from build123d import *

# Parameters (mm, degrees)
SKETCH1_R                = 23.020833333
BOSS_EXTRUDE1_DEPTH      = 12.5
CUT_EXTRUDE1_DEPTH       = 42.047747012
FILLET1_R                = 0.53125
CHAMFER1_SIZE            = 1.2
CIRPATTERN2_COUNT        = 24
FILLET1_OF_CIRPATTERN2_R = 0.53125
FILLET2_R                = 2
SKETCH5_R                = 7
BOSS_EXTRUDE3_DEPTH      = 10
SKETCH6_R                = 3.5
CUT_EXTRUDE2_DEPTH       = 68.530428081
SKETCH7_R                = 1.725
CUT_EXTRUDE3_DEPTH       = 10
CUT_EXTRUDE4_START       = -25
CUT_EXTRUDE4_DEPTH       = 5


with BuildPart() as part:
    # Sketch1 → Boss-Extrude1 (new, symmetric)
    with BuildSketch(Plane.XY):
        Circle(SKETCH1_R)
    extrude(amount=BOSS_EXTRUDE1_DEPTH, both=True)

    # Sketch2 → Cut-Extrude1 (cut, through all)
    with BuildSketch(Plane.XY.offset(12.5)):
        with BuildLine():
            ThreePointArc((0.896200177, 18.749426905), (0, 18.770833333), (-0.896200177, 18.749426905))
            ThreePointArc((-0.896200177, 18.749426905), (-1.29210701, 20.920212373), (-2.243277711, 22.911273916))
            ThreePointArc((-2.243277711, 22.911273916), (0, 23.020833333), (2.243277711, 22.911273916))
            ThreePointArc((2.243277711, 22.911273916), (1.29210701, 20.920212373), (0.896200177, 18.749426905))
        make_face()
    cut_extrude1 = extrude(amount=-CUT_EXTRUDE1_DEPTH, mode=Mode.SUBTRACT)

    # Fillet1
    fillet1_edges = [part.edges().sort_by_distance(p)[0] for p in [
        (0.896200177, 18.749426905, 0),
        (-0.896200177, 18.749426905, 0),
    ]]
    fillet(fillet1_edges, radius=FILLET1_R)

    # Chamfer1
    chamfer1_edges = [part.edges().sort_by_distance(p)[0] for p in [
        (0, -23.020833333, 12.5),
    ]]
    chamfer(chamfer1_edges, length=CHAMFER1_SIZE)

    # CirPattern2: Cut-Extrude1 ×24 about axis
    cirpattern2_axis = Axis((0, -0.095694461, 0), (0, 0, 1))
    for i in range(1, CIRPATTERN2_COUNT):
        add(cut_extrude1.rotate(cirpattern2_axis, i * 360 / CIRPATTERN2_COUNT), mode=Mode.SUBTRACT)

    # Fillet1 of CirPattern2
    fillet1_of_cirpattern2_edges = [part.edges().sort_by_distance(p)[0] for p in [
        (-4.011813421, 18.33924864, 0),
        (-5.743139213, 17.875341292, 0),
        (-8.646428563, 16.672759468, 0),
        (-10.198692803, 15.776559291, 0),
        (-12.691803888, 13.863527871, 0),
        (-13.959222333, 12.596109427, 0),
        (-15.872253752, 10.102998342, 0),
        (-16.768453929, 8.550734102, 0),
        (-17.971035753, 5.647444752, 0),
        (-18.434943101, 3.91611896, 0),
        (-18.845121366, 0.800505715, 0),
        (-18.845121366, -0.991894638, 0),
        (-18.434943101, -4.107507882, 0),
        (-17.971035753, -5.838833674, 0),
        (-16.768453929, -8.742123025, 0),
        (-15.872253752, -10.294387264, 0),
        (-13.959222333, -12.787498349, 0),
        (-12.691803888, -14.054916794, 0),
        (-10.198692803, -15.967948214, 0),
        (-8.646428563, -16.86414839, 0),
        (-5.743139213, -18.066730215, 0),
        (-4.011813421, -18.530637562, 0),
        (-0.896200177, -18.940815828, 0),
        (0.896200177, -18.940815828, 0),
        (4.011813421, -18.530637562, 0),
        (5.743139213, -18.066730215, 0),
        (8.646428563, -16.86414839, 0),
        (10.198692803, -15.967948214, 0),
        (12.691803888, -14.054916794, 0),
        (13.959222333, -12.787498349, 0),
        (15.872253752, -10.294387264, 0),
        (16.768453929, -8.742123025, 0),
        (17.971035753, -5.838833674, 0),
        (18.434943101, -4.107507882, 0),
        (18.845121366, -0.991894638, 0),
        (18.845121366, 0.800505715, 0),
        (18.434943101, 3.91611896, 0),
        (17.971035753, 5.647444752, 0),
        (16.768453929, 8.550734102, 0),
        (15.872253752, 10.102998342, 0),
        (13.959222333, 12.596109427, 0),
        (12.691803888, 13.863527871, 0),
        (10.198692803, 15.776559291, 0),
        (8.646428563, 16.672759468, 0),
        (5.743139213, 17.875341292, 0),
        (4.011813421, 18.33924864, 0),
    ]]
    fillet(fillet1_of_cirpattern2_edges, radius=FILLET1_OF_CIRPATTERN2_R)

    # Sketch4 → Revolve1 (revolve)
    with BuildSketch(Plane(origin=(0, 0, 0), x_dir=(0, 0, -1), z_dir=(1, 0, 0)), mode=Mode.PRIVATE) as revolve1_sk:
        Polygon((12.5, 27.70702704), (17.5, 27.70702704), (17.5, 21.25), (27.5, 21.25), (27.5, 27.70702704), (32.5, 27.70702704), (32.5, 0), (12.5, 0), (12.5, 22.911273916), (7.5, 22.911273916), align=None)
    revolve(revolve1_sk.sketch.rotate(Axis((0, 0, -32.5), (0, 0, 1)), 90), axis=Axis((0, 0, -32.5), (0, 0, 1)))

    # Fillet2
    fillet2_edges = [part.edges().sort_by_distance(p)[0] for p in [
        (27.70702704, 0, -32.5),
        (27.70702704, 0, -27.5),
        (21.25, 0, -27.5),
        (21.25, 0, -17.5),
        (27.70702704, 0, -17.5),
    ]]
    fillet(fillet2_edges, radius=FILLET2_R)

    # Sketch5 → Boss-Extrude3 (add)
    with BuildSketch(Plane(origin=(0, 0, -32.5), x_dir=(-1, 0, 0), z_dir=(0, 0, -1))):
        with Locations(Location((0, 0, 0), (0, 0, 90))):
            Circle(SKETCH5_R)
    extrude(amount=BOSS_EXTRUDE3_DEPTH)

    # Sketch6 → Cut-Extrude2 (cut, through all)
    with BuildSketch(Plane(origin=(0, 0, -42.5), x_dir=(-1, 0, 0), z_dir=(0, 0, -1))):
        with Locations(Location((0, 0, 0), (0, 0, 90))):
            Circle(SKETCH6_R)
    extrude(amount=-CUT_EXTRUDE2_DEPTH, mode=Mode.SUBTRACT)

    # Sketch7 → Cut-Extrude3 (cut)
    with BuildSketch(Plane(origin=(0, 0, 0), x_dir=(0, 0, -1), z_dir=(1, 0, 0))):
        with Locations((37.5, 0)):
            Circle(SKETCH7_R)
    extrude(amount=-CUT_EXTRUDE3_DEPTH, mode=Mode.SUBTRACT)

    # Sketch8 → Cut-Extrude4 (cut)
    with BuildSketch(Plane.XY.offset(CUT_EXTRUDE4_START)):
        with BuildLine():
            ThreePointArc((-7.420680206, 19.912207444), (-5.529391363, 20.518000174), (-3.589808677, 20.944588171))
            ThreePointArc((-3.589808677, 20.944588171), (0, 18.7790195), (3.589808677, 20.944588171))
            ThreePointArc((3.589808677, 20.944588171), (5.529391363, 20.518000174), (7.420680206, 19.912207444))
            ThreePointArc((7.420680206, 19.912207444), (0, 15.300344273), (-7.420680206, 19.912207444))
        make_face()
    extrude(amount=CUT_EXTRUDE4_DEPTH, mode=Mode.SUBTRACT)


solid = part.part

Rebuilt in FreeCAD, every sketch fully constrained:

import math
import FreeCAD as App
import Part
import Sketcher
from FreeCAD import Vector


def edges_at(feature, points):
    """Names of the edges that pass closest to the given points."""
    edges = feature.Shape.Edges
    near = lambda p: min(range(len(edges)), key=lambda i: edges[i].distToShape(Part.Vertex(*p))[0])
    return sorted({f"Edge{near(p) + 1}" for p in points})


def add_polygon(sketch, points):
    """Adds a closed chain of lines whose ends are joined by coincident constraints."""
    first, n = sketch.GeometryCount, len(points)
    for a, b in zip(points, points[1:] + points[:1]):
        sketch.addGeometry(Part.LineSegment(App.Vector(*a, 0), App.Vector(*b, 0)), False)
    for i in range(n):
        sketch.addConstraint(Sketcher.Constraint("Coincident", first + i, 2, first + (i + 1) % n, 1))

doc = App.newDocument("Part")
body = doc.addObject("PartDesign::Body", "Body")

sketch1 = doc.addObject("Sketcher::SketchObject", "Sketch")
body.addObject(sketch1)
sketch1.AttachmentSupport = (doc.XY_Plane, [""])
sketch1.MapMode = "FlatFace"
sketch1.addGeometry(Part.Circle(Vector(0, 0, 0), Vector(0, 0, 1), 23), False)
sketch1.addConstraint([
    Sketcher.Constraint("Coincident", 0, 3, -1, 1),
    Sketcher.Constraint("Diameter", 0, 46.041667),
])
pad1 = doc.addObject("PartDesign::Pad", "Pad")
body.addObject(pad1)
pad1.Profile = sketch1
pad1.Length = 25
pad1.Midplane = True

sketch2 = doc.addObject("Sketcher::SketchObject", "Sketch001")
body.addObject(sketch2)
sketch2.AttachmentSupport = (doc.XY_Plane, [""])
sketch2.MapMode = "FlatFace"
sketch2.AttachmentOffset = App.Placement(Vector(0, 0, 12.5), App.Rotation())
sketch2.addGeometry([
    Part.ArcOfCircle(Part.Circle(Vector(0, 0, 0), Vector(0, 0, 1), 18.8), math.radians(87.26), math.radians(92.74)),
    Part.ArcOfCircle(Part.Circle(Vector(9.2, 18.4, 0), Vector(0, 0, 1), 8.3), math.radians(147), math.radians(177)),
    Part.ArcOfCircle(Part.Circle(Vector(0, 0, 0), Vector(0, 0, 1), 23), math.radians(84.41), math.radians(95.59)),
    Part.ArcOfCircle(Part.Circle(Vector(-9.2, 18.4, 0), Vector(0, 0, 1), 8.3), math.radians(3), math.radians(33)),
], False)
sketch2.addConstraint([
    Sketcher.Constraint("Coincident", 0, 1, 1, 2),
    Sketcher.Constraint("Coincident", 1, 1, 2, 1),
    Sketcher.Constraint("Coincident", 2, 2, 3, 2),
    Sketcher.Constraint("Coincident", 3, 1, 0, 2),
    Sketcher.Constraint("Coincident", 0, 3, -1, 1),
    Sketcher.Constraint("Coincident", 2, 3, -1, 1),
    Sketcher.Constraint("Equal", 1, 3),
    Sketcher.Constraint("Symmetric", 1, 3, 3, 3, -2),
    Sketcher.Constraint("Radius", 1, 8.342768),
    Sketcher.Constraint("Radius", 0, 18.770834),
    Sketcher.Constraint("Radius", 2, 23.020833),
    Sketcher.Constraint("DistanceX", -1, 1, 0, 1, 0.8962),
    Sketcher.Constraint("DistanceX", 3, 3, 1, 3, 18.458908),
])
pocket1 = doc.addObject("PartDesign::Pocket", "Pocket")
body.addObject(pocket1)
pocket1.Profile = sketch2
pocket1.Type = "ThroughAll"
doc.recompute()

fillet = doc.addObject("PartDesign::Fillet", "Fillet")
body.addObject(fillet)
fillet.Base = (pocket1, edges_at(pocket1, [(0.896, 18.749, 0), (-0.896, 18.749, 0)]))
fillet.Radius = 0.53125
doc.recompute()

chamfer = doc.addObject("PartDesign::Chamfer", "Chamfer")
body.addObject(chamfer)
chamfer.Base = (fillet, edges_at(fillet, [(0, -23.021, 12.5)]))
chamfer.Size = 1.2
doc.recompute()

datumline = doc.addObject("PartDesign::Line", "DatumLine")
body.addObject(datumline)
datumline.Placement = App.Placement(Vector(0, -0.095694, 0), App.Rotation(Vector(0, 0, 1), Vector(0, 0, 1)))
polarpattern = doc.addObject("PartDesign::PolarPattern", "PolarPattern")
body.addObject(polarpattern)
polarpattern.Originals = [pocket1]
polarpattern.Axis = (datumline, [""])
polarpattern.Angle = 360
polarpattern.Occurrences = 24
body.Tip = polarpattern
doc.recompute()

fillet2 = doc.addObject("PartDesign::Fillet", "Fillet001")
body.addObject(fillet2)
fillet2.Base = (polarpattern, edges_at(polarpattern, [
    (-4.012, 18.339, 0),
    (-5.743, 17.875, 0),
    (-8.646, 16.673, 0),
    (-10.199, 15.777, 0),
    (-12.692, 13.864, 0),
    (-13.959, 12.596, 0),
    (-15.872, 10.103, 0),
    (-16.768, 8.551, 0),
    (-17.971, 5.647, 0),
    (-18.435, 3.916, 0),
    (-18.845, 0.801, 0),
    (-18.845, -0.992, 0),
    (-18.435, -4.108, 0),
    (-17.971, -5.839, 0),
    (-16.768, -8.742, 0),
    (-15.872, -10.294, 0),
    (-13.959, -12.787, 0),
    (-12.692, -14.055, 0),
    (-10.199, -15.968, 0),
    (-8.646, -16.864, 0),
    (-5.743, -18.067, 0),
    (-4.012, -18.531, 0),
    (-0.896, -18.941, 0),
    (0.896, -18.941, 0),
    (4.012, -18.531, 0),
    (5.743, -18.067, 0),
    (8.646, -16.864, 0),
    (10.199, -15.968, 0),
    (12.692, -14.055, 0),
    (13.959, -12.787, 0),
    (15.872, -10.294, 0),
    (16.768, -8.742, 0),
    (17.971, -5.839, 0),
    (18.435, -4.108, 0),
    (18.845, -0.992, 0),
    (18.845, 0.801, 0),
    (18.435, 3.916, 0),
    (17.971, 5.647, 0),
    (16.768, 8.551, 0),
    (15.872, 10.103, 0),
    (13.959, 12.596, 0),
    (12.692, 13.864, 0),
    (10.199, 15.777, 0),
    (8.646, 16.673, 0),
    (5.743, 17.875, 0),
    (4.012, 18.339, 0),
]))
fillet2.Radius = 0.53125

sketch3 = doc.addObject("Sketcher::SketchObject", "Sketch002")
body.addObject(sketch3)
sketch3.AttachmentSupport = (doc.YZ_Plane, [""])
sketch3.MapMode = "FlatFace"
add_polygon(sketch3, [(28, -18), (28, -12), (23, -8), (23, -12), (0, -12), (0, -32), (28, -32), (28, -28), (21, -28), (21, -18)])
sketch3.addConstraint([
    Sketcher.Constraint("Vertical", 0),
    Sketcher.Constraint("Vertical", 2),
    Sketcher.Constraint("Horizontal", 3),
    Sketcher.Constraint("Vertical", 4),
    Sketcher.Constraint("Horizontal", 5),
    Sketcher.Constraint("Vertical", 6),
    Sketcher.Constraint("Horizontal", 7),
    Sketcher.Constraint("Vertical", 8),
    Sketcher.Constraint("Horizontal", 9),
    Sketcher.Constraint("PointOnObject", 3, 2, -2),
    Sketcher.Constraint("Horizontal", 0, 2, 2, 2),
    Sketcher.Constraint("Vertical", 0, 2, 5, 2),
    Sketcher.Constraint("Equal", 0, 2),
    Sketcher.Constraint("Equal", 2, 6),
    Sketcher.Constraint("DistanceY", 0, 1, 0, 2, 5.0),
    Sketcher.Constraint("DistanceY", 4, 2, 4, 1, 20.0),
    Sketcher.Constraint("DistanceY", 0, 2, -1, 1, 12.5),
    Sketcher.Constraint("DistanceX", -1, 1, 7, 2, 21.25),
    Sketcher.Constraint("Distance", 1, 6.928149),
    Sketcher.Constraint("DistanceX", 3, 2, 3, 1, 22.911274),
])
revolution = doc.addObject("PartDesign::Revolution", "Revolution")
body.addObject(revolution)
revolution.Profile = sketch3
revolution.ReferenceAxis = (sketch3, ["V_Axis"])
revolution.Angle = 360
doc.recompute()

fillet3 = doc.addObject("PartDesign::Fillet", "Fillet002")
body.addObject(fillet3)
fillet3.Base = (revolution, edges_at(revolution, [
    (27.707, 0, -32.5),
    (27.707, 0, -27.5),
    (21.25, 0, -27.5),
    (21.25, 0, -17.5),
    (27.707, 0, -17.5),
]))
fillet3.Radius = 2

sketch4 = doc.addObject("Sketcher::SketchObject", "Sketch003")
body.addObject(sketch4)
sketch4.AttachmentSupport = (doc.XY_Plane, [""])
sketch4.MapMode = "FlatFace"
sketch4.AttachmentOffset = App.Placement(Vector(0, 0, -32.5), App.Rotation())
sketch4.addGeometry(Part.Circle(Vector(0, 0, 0), Vector(0, 0, 1), 7), False)
sketch4.addConstraint([
    Sketcher.Constraint("Coincident", 0, 3, -1, 1),
    Sketcher.Constraint("Diameter", 0, 14.0),
])
pad2 = doc.addObject("PartDesign::Pad", "Pad001")
body.addObject(pad2)
pad2.Profile = sketch4
pad2.Length = 10
pad2.Reversed = True

sketch5 = doc.addObject("Sketcher::SketchObject", "Sketch004")
body.addObject(sketch5)
sketch5.AttachmentSupport = (doc.XY_Plane, [""])
sketch5.MapMode = "FlatFace"
sketch5.AttachmentOffset = App.Placement(Vector(0, 0, -42.5), App.Rotation())
sketch5.addGeometry(Part.Circle(Vector(0, 0, 0), Vector(0, 0, 1), 3.5), False)
sketch5.addConstraint([
    Sketcher.Constraint("Coincident", 0, 3, -1, 1),
    Sketcher.Constraint("Diameter", 0, 7.0),
])
pocket2 = doc.addObject("PartDesign::Pocket", "Pocket001")
body.addObject(pocket2)
pocket2.Profile = sketch5
pocket2.Type = "ThroughAll"
pocket2.Reversed = True

sketch6 = doc.addObject("Sketcher::SketchObject", "Sketch005")
body.addObject(sketch6)
sketch6.AttachmentSupport = (doc.YZ_Plane, [""])
sketch6.MapMode = "FlatFace"
sketch6.addGeometry(Part.Circle(Vector(0, -37.5, 0), Vector(0, 0, 1), 1.7), False)
sketch6.addConstraint([
    Sketcher.Constraint("PointOnObject", 0, 3, -2),
    Sketcher.Constraint("Diameter", 0, 3.45),
    Sketcher.Constraint("DistanceY", 0, 3, -1, 1, 37.5),
])
pocket3 = doc.addObject("PartDesign::Pocket", "Pocket002")
body.addObject(pocket3)
pocket3.Profile = sketch6
pocket3.Length = 10

sketch7 = doc.addObject("Sketcher::SketchObject", "Sketch006")
body.addObject(sketch7)
sketch7.AttachmentSupport = (doc.XY_Plane, [""])
sketch7.MapMode = "FlatFace"
sketch7.AttachmentOffset = App.Placement(Vector(0, 0, -25), App.Rotation())
sketch7.addGeometry([
    Part.ArcOfCircle(Part.Circle(Vector(0, 0, 0), Vector(0, 0, 1), 21.3), math.radians(99.73), math.radians(110.44)),
    Part.ArcOfCircle(Part.Circle(Vector(0, 23.6, 0), Vector(0, 0, 1), 8.3), math.radians(-154), math.radians(-26)),
    Part.ArcOfCircle(Part.Circle(Vector(0, 0, 0), Vector(0, 0, 1), 21.3), math.radians(69.56), math.radians(80.27)),
    Part.ArcOfCircle(Part.Circle(Vector(0, 22.8, 0), Vector(0, 0, 1), 4.1), math.radians(-152), math.radians(-28)),
], False)
sketch7.addConstraint([
    Sketcher.Constraint("Coincident", 0, 2, 1, 1),
    Sketcher.Constraint("Coincident", 1, 2, 2, 1),
    Sketcher.Constraint("Coincident", 2, 2, 3, 2),
    Sketcher.Constraint("Coincident", 3, 1, 0, 1),
    Sketcher.Constraint("Coincident", 0, 3, -1, 1),
    Sketcher.Constraint("Coincident", 2, 3, -1, 1),
    Sketcher.Constraint("Equal", 0, 2),
    Sketcher.Constraint("PointOnObject", 1, 3, -2),
    Sketcher.Constraint("PointOnObject", 3, 3, -2),
    Sketcher.Constraint("Radius", 0, 21.25),
    Sketcher.Constraint("Radius", 1, 8.276024),
    Sketcher.Constraint("Radius", 3, 4.058152),
    Sketcher.Constraint("DistanceY", -1, 1, 3, 3, 22.837172),
    Sketcher.Constraint("DistanceX", 0, 2, -1, 1, 7.42068),
])
pocket4 = doc.addObject("PartDesign::Pocket", "Pocket003")
body.addObject(pocket4)
pocket4.Profile = sketch7
pocket4.Length = 5
pocket4.Reversed = True

doc.recompute()
